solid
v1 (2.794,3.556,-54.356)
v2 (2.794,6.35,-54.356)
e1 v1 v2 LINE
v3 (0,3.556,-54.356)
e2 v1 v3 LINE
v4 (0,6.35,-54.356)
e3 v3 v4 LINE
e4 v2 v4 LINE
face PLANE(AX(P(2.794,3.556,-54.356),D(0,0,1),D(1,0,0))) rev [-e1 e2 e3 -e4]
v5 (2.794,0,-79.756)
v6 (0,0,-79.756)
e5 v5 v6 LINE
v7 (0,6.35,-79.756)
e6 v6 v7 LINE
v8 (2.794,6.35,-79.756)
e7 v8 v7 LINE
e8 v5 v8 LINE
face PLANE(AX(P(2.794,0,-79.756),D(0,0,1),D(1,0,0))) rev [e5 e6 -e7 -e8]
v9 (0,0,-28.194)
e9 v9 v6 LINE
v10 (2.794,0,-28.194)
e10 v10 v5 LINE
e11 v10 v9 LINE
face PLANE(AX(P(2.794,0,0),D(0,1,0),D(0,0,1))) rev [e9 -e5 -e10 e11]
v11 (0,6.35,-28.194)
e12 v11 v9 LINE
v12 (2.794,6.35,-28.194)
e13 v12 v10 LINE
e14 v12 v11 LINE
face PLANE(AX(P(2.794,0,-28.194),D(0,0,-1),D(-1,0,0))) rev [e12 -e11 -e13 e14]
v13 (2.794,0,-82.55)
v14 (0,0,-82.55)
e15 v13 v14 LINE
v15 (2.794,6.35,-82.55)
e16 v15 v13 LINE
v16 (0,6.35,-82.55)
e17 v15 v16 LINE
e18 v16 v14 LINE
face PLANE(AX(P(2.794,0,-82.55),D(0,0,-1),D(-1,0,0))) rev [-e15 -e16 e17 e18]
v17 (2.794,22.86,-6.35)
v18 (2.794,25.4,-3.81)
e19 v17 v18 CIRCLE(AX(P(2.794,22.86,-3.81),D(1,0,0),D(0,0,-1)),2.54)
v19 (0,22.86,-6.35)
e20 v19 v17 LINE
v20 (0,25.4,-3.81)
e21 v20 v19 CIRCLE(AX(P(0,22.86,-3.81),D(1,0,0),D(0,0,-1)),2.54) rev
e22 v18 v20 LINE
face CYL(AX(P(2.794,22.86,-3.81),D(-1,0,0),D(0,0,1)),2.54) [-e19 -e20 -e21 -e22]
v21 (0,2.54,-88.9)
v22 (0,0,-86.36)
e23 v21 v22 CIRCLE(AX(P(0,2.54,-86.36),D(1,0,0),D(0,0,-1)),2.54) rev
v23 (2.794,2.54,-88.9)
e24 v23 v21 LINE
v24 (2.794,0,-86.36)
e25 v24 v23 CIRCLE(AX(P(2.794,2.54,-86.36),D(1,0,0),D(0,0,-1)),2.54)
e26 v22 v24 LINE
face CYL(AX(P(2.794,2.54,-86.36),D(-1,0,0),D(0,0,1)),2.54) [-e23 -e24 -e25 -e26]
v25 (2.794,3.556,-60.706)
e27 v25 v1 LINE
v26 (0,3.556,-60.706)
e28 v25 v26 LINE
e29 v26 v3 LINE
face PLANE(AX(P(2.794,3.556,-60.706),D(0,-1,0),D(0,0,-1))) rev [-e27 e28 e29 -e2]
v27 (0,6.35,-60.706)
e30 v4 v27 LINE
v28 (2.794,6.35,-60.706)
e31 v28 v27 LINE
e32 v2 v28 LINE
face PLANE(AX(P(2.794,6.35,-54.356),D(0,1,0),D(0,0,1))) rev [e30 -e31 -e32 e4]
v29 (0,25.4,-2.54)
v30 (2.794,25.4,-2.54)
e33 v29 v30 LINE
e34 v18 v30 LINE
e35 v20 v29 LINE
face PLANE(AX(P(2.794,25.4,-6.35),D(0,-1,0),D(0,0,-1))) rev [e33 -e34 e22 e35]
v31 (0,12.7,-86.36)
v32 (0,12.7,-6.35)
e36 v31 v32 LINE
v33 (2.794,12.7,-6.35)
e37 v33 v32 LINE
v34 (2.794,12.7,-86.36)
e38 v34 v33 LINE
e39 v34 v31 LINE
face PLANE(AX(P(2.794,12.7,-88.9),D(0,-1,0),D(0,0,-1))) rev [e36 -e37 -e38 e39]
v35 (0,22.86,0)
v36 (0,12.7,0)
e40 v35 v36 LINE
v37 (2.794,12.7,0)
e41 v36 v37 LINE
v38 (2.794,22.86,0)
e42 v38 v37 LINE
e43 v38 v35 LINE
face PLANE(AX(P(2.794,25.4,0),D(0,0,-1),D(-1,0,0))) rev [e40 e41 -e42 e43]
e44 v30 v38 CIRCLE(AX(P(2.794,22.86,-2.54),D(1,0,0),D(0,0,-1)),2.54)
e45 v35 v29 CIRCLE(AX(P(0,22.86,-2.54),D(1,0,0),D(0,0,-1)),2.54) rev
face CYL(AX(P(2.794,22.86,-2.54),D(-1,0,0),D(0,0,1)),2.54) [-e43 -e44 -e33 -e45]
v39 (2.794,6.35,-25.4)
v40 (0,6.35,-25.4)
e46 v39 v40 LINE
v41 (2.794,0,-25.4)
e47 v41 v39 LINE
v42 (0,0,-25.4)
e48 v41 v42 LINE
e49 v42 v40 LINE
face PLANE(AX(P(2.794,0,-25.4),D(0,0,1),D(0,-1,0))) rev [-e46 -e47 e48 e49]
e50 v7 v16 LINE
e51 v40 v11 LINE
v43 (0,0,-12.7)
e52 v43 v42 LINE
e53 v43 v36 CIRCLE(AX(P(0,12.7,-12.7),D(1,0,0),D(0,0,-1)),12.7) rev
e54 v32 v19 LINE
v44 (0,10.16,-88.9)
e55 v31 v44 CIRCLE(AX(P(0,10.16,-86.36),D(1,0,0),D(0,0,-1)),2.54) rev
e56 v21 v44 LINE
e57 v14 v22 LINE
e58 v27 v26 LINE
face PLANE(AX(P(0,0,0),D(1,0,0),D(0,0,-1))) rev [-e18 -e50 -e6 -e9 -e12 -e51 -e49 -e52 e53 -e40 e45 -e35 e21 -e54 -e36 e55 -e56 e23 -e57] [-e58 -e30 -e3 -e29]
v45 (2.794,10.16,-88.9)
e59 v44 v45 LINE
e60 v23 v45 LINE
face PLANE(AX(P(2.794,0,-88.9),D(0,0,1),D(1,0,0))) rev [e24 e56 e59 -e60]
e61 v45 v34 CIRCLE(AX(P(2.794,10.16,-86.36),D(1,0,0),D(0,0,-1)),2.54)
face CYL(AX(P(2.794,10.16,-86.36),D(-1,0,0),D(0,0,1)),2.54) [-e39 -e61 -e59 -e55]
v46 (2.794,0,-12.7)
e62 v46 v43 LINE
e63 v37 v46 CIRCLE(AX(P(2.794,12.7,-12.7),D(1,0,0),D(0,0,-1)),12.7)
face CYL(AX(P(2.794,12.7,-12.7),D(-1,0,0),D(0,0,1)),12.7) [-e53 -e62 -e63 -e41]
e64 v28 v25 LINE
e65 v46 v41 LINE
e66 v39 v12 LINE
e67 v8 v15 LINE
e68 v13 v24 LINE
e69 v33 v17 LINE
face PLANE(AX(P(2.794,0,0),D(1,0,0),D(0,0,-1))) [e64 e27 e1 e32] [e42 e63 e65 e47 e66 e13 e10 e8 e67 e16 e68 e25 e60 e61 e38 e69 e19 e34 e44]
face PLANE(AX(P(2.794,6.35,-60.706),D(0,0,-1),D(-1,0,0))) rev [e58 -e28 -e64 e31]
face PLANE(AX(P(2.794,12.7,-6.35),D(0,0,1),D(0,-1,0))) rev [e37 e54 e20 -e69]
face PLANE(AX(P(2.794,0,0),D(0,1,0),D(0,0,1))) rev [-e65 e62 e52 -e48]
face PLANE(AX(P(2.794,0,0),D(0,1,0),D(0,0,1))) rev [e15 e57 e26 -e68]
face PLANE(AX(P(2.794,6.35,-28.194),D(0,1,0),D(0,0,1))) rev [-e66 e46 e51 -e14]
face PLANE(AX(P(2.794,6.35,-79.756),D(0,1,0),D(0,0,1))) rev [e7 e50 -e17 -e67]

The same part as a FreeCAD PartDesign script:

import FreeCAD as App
import Part
import Sketcher
from FreeCAD import Vector
Q = App.Units.Quantity


def edges_at(feature, points):
    """Names of the edges that pass closest to the given points."""
    edges = feature.Shape.Edges
    near = lambda p: min(range(len(edges)), key=lambda i: edges[i].distToShape(Part.Vertex(*p))[0])
    return sorted({f"Edge{near(p) + 1}" for p in points})


def add_polygon(sketch, points):
    """Adds a closed chain of lines whose ends are joined by coincident constraints."""
    first, n = sketch.GeometryCount, len(points)
    for a, b in zip(points, points[1:] + points[:1]):
        sketch.addGeometry(Part.LineSegment(App.Vector(*a, 0), App.Vector(*b, 0)), False)
    for i in range(n):
        sketch.addConstraint(Sketcher.Constraint("Coincident", first + i, 2, first + (i + 1) % n, 1))

doc = App.newDocument("Part")
body = doc.addObject("PartDesign::Body", "Body")

sketch1 = doc.addObject("Sketcher::SketchObject", "Sketch")
body.addObject(sketch1)
sketch1.AttachmentSupport = (doc.YZ_Plane, [""])
sketch1.MapMode = "FlatFace"
add_polygon(sketch1, [(0, 0), (0, -89), (13, -89), (13, -6), (25, -6), (25, 0)])
sketch1.addConstraint([
    Sketcher.Constraint("Vertical", 0),
    Sketcher.Constraint("Horizontal", 1),
    Sketcher.Constraint("Vertical", 2),
    Sketcher.Constraint("Horizontal", 3),
    Sketcher.Constraint("Vertical", 4),
    Sketcher.Constraint("Horizontal", 5),
    Sketcher.Constraint("Coincident", 5, 2, -1, 1),
    Sketcher.Constraint("Equal", 1, 3),
    Sketcher.Constraint("DistanceX", 5, 2, 5, 1, Q("1 in")),
    Sketcher.Constraint("DistanceY", 0, 2, 0, 1, Q("3.5 in")),
    Sketcher.Constraint("DistanceY", 2, 1, 2, 2, Q("3.25 in")),
])
pad1 = doc.addObject("PartDesign::Pad", "Pad")
body.addObject(pad1)
pad1.Profile = sketch1
pad1.Length = Q("0.11 in")
doc.recompute()

fillet = doc.addObject("PartDesign::Fillet", "Fillet")
body.addObject(fillet)
fillet.Base = (pad1, edges_at(pad1, [
    (1.397, 25.4, 0),
    (1.397, 25.4, -6.35),
    (1.397, 12.7, -88.9),
    (1.397, 0, -88.9),
]))
fillet.Radius = Q("0.1 in")
doc.recompute()

fillet2 = doc.addObject("PartDesign::Fillet", "Fillet001")
body.addObject(fillet2)
fillet2.Base = (fillet, edges_at(fillet, [(1.397, 0, 0)]))
fillet2.Radius = Q("0.5 in")

sketch2 = doc.addObject("Sketcher::SketchObject", "Sketch001")
body.addObject(sketch2)
sketch2.AttachmentSupport = (doc.YZ_Plane, [""])
sketch2.MapMode = "FlatFace"
add_polygon(sketch2, [(6.3, -28.2), (0, -28.2), (0, -25.4), (6.3, -25.4)])
add_polygon(sketch2, [(6.3, -82.5), (0, -82.5), (0, -79.8), (6.3, -79.8)])
add_polygon(sketch2, [(6.3, -60.7), (3.6, -60.7), (3.6, -54.4), (6.3, -54.4)])
sketch2.addConstraint([
    Sketcher.Constraint("Horizontal", 0),
    Sketcher.Constraint("Vertical", 1),
    Sketcher.Constraint("Horizontal", 2),
    Sketcher.Constraint("Vertical", 3),
    Sketcher.Constraint("Horizontal", 4),
    Sketcher.Constraint("Vertical", 5),
    Sketcher.Constraint("Horizontal", 6),
    Sketcher.Constraint("Vertical", 7),
    Sketcher.Constraint("Horizontal", 8),
    Sketcher.Constraint("Vertical", 9),
    Sketcher.Constraint("Horizontal", 10),
    Sketcher.Constraint("Vertical", 11),
    Sketcher.Constraint("PointOnObject", 0, 2, -2),
    Sketcher.Constraint("PointOnObject", 4, 2, -2),
    Sketcher.Constraint("Vertical", 3, 2, 6, 2),
    Sketcher.Constraint("Vertical", 7, 2, 10, 2),
    Sketcher.Constraint("Equal", 10, 1),
    Sketcher.Constraint("Equal", 3, 5),
    Sketcher.Constraint("Equal", 6, 9),
    Sketcher.Constraint("DistanceY", 1, 2, -1, 1, Q("1 in")),
    Sketcher.Constraint("DistanceY", 6, 2, 9, 2, Q("1 in")),
    Sketcher.Constraint("DistanceX", 0, 2, 0, 1, Q("0.25 in")),
    Sketcher.Constraint("DistanceX", 8, 2, 8, 1, Q("0.11 in")),
    Sketcher.Constraint("DistanceY", 4, 2, -1, 1, Q("3.25 in")),
])
pocket1 = doc.addObject("PartDesign::Pocket", "Pocket")
body.addObject(pocket1)
pocket1.Profile = sketch2
pocket1.Type = "ThroughAll"
pocket1.Reversed = True

doc.recompute()
